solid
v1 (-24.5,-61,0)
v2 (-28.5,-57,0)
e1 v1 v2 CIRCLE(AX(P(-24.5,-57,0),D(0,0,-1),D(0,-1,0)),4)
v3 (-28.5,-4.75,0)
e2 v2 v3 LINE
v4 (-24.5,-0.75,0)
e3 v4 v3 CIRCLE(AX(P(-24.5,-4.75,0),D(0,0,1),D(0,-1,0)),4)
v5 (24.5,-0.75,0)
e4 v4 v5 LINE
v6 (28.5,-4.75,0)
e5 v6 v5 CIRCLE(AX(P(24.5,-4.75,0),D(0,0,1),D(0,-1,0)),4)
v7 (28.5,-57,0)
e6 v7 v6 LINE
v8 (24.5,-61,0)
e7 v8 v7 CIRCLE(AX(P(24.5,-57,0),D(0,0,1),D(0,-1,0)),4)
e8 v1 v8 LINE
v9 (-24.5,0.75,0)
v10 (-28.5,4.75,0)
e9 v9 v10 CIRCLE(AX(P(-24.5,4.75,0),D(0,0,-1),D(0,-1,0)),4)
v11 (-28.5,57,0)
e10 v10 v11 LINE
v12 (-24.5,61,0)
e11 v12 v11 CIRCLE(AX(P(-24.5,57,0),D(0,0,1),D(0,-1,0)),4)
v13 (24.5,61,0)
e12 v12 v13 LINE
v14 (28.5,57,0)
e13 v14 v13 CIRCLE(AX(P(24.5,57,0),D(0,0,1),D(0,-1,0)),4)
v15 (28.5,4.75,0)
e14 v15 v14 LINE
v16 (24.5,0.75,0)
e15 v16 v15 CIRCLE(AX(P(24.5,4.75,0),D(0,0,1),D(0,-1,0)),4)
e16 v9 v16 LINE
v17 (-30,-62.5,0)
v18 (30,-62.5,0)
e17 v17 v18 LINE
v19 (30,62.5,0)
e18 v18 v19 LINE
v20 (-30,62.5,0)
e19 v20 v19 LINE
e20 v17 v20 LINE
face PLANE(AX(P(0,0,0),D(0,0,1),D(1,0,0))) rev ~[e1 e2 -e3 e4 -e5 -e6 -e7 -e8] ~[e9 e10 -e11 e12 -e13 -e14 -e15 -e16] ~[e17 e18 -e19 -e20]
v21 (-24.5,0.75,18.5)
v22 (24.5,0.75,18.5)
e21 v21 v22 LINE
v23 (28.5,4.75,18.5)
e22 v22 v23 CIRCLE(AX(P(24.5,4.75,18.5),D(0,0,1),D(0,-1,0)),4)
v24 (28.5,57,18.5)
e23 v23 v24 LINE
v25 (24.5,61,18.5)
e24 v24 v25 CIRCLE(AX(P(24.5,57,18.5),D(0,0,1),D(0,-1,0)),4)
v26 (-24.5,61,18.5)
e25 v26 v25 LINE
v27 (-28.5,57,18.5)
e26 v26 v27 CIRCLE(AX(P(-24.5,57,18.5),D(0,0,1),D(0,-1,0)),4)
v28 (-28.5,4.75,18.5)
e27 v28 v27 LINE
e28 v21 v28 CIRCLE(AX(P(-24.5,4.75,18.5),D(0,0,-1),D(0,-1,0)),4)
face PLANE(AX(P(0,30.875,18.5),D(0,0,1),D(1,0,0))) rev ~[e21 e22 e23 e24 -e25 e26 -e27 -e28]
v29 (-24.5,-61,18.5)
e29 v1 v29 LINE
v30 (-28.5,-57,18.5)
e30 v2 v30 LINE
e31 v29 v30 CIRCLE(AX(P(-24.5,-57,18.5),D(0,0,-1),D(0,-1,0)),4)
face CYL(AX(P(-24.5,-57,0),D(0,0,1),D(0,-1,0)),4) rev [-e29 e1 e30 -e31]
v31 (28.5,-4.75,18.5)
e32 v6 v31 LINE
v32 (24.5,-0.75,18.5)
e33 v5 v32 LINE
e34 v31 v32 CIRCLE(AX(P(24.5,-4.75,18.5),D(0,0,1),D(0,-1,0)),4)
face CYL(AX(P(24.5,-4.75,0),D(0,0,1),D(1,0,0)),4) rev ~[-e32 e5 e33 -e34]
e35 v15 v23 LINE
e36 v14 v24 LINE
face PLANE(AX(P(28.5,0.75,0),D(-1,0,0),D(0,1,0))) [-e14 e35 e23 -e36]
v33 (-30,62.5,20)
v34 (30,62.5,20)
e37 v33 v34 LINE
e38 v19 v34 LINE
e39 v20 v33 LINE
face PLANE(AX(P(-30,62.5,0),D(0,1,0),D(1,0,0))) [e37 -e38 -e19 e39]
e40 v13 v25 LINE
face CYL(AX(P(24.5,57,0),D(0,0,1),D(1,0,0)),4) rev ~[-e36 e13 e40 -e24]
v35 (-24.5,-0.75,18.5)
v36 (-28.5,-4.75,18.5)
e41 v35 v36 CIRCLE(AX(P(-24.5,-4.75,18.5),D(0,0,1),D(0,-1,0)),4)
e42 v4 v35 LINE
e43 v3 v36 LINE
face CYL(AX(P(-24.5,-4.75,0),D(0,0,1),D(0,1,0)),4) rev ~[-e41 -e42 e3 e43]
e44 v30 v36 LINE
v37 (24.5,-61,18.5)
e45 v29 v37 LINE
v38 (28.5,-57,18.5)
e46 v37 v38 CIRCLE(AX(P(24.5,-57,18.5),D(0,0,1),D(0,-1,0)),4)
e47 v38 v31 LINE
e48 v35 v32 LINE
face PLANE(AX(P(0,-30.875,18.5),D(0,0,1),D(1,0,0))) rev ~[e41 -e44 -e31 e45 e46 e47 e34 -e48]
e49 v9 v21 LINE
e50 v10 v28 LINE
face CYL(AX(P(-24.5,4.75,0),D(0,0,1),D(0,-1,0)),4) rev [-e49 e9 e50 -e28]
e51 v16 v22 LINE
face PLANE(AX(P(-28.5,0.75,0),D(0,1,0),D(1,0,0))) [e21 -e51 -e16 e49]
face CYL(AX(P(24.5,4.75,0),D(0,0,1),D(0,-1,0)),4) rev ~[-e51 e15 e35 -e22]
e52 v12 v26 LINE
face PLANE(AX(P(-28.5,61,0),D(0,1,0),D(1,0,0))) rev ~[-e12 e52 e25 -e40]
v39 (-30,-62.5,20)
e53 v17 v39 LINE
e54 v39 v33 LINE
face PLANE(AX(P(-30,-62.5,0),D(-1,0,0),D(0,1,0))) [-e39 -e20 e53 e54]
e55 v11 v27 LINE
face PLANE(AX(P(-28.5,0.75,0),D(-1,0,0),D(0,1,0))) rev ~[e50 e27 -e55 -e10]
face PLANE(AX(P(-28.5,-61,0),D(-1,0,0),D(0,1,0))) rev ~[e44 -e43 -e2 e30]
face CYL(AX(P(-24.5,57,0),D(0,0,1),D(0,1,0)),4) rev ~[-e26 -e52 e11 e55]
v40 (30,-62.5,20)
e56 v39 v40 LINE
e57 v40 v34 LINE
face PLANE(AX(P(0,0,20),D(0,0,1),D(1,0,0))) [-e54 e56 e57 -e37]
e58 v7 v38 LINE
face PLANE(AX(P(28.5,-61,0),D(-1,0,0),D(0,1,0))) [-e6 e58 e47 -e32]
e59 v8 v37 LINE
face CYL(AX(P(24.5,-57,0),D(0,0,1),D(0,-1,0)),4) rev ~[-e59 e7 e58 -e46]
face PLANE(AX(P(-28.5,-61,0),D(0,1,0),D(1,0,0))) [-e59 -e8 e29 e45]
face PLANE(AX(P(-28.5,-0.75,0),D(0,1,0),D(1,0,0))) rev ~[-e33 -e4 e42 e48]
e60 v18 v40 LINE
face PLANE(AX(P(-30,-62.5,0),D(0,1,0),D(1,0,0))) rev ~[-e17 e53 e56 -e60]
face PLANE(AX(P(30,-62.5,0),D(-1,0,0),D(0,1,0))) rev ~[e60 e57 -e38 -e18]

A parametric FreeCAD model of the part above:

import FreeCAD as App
import Part
import Sketcher

V = App.Vector


def edges_at(feature, points):
    """Names of the edges that pass closest to the given points."""
    edges = feature.Shape.Edges
    near = lambda p: min(range(len(edges)), key=lambda i: edges[i].distToShape(Part.Vertex(*p))[0])
    return sorted({f"Edge{near(p) + 1}" for p in points})

doc = App.newDocument("Part")
params = doc.addObject("Spreadsheet::Sheet", "Params")
for row, (alias, value) in enumerate([
    ("sketch1_width", "60 mm"),
    ("sketch1_height", "125 mm"),
    ("pad1_length", "20 mm"),
    ("sketch2_width", "57 mm"),
    ("sketch2_height", "60.25 mm"),
    ("pocket1_length", "18.5 mm"),
    ("fillet_radius", "4 mm"),
], start=1):
    params.set(f"A{row}", alias)
    params.set(f"B{row}", "=" + value)
    params.setAlias(f"B{row}", alias)

body = doc.addObject("PartDesign::Body", "Body")

sketch1 = body.newObject("Sketcher::SketchObject", "Sketch")
sketch1.AttachmentSupport = (doc.getObject("XY_Plane"), [""])
sketch1.MapMode = "FlatFace"
sketch1.addGeometry([
    Part.LineSegment(V(-30, 62, 0), V(-30, -62, 0)),
    Part.LineSegment(V(-30, -62, 0), V(30, -62, 0)),
    Part.LineSegment(V(30, -62, 0), V(30, 62, 0)),
    Part.LineSegment(V(30, 62, 0), V(-30, 62, 0)),
], False)
sketch1.addConstraint([
    Sketcher.Constraint("Coincident", 0, 2, 1, 1),
    Sketcher.Constraint("Coincident", 1, 2, 2, 1),
    Sketcher.Constraint("Coincident", 2, 2, 3, 1),
    Sketcher.Constraint("Coincident", 3, 2, 0, 1),
    Sketcher.Constraint("Vertical", 0),
    Sketcher.Constraint("Horizontal", 1),
    Sketcher.Constraint("Vertical", 2),
    Sketcher.Constraint("Horizontal", 3),
    Sketcher.Constraint("Symmetric", 0, 2, 2, 2, -1, 1),
    Sketcher.Constraint("DistanceX", 1, 1, 1, 2, 60.0),
    Sketcher.Constraint("DistanceY", 0, 2, 0, 1, 125.0),
])
sketch1.setExpression("Constraints[9]", "Params.sketch1_width")
sketch1.setExpression("Constraints[10]", "Params.sketch1_height")
pad1 = body.newObject("PartDesign::Pad", "Pad")
pad1.Profile = sketch1
pad1.setExpression("Length", "Params.pad1_length")

sketch2 = body.newObject("Sketcher::SketchObject", "Sketch001")
sketch2.AttachmentSupport = (doc.getObject("XY_Plane"), [""])
sketch2.MapMode = "FlatFace"
sketch2.addGeometry([
    Part.LineSegment(V(-28, 61, 0), V(-28, 1, 0)),
    Part.LineSegment(V(-28, 1, 0), V(28, 1, 0)),
    Part.LineSegment(V(28, 1, 0), V(28, 61, 0)),
    Part.LineSegment(V(28, 61, 0), V(-28, 61, 0)),
    Part.LineSegment(V(-28, -1, 0), V(-28, -61, 0)),
    Part.LineSegment(V(-28, -61, 0), V(28, -61, 0)),
    Part.LineSegment(V(28, -61, 0), V(28, -1, 0)),
    Part.LineSegment(V(28, -1, 0), V(-28, -1, 0)),
], False)
sketch2.addConstraint([
    Sketcher.Constraint("Coincident", 0, 2, 1, 1),
    Sketcher.Constraint("Coincident", 1, 2, 2, 1),
    Sketcher.Constraint("Coincident", 2, 2, 3, 1),
    Sketcher.Constraint("Coincident", 3, 2, 0, 1),
    Sketcher.Constraint("Coincident", 4, 2, 5, 1),
    Sketcher.Constraint("Coincident", 5, 2, 6, 1),
    Sketcher.Constraint("Coincident", 6, 2, 7, 1),
    Sketcher.Constraint("Coincident", 7, 2, 4, 1),
    Sketcher.Constraint("Vertical", 0),
    Sketcher.Constraint("Horizontal", 1),
    Sketcher.Constraint("Vertical", 2),
    Sketcher.Constraint("Horizontal", 3),
    Sketcher.Constraint("Vertical", 4),
    Sketcher.Constraint("Horizontal", 5),
    Sketcher.Constraint("Vertical", 6),
    Sketcher.Constraint("Horizontal", 7),
    Sketcher.Constraint("Symmetric", 2, 2, 4, 2, -1, 1),
    Sketcher.Constraint("Symmetric", 0, 2, 6, 2, -1, 1),
    Sketcher.Constraint("Vertical", 3, 2, 4, 2),
    Sketcher.Constraint("DistanceX", 1, 1, 1, 2, 57.0),
    Sketcher.Constraint("DistanceY", -1, 1, 2, 2, 61.0),
    Sketcher.Constraint("DistanceY", 0, 2, 0, 1, 60.25),
])
sketch2.setExpression("Constraints[19]", "Params.sketch2_width")
sketch2.setExpression("Constraints[21]", "Params.sketch2_height")
pocket1 = body.newObject("PartDesign::Pocket", "Pocket")
pocket1.Profile = sketch2
pocket1.setExpression("Length", "Params.pocket1_length")
pocket1.Reversed = True
doc.recompute()

fillet = body.newObject("PartDesign::Fillet", "Fillet")
fillet.Base = (pocket1, edges_at(pocket1, [
    (28.5, -61, 9.25),
    (28.5, 0.75, 9.25),
    (-28.5, -61, 9.25),
    (-28.5, 0.75, 9.25),
    (-28.5, -0.75, 9.25),
    (-28.5, 61, 9.25),
    (28.5, 61, 9.25),
    (28.5, -0.75, 9.25),
]))
fillet.setExpression("Radius", "Params.fillet_radius")

doc.recompute()
